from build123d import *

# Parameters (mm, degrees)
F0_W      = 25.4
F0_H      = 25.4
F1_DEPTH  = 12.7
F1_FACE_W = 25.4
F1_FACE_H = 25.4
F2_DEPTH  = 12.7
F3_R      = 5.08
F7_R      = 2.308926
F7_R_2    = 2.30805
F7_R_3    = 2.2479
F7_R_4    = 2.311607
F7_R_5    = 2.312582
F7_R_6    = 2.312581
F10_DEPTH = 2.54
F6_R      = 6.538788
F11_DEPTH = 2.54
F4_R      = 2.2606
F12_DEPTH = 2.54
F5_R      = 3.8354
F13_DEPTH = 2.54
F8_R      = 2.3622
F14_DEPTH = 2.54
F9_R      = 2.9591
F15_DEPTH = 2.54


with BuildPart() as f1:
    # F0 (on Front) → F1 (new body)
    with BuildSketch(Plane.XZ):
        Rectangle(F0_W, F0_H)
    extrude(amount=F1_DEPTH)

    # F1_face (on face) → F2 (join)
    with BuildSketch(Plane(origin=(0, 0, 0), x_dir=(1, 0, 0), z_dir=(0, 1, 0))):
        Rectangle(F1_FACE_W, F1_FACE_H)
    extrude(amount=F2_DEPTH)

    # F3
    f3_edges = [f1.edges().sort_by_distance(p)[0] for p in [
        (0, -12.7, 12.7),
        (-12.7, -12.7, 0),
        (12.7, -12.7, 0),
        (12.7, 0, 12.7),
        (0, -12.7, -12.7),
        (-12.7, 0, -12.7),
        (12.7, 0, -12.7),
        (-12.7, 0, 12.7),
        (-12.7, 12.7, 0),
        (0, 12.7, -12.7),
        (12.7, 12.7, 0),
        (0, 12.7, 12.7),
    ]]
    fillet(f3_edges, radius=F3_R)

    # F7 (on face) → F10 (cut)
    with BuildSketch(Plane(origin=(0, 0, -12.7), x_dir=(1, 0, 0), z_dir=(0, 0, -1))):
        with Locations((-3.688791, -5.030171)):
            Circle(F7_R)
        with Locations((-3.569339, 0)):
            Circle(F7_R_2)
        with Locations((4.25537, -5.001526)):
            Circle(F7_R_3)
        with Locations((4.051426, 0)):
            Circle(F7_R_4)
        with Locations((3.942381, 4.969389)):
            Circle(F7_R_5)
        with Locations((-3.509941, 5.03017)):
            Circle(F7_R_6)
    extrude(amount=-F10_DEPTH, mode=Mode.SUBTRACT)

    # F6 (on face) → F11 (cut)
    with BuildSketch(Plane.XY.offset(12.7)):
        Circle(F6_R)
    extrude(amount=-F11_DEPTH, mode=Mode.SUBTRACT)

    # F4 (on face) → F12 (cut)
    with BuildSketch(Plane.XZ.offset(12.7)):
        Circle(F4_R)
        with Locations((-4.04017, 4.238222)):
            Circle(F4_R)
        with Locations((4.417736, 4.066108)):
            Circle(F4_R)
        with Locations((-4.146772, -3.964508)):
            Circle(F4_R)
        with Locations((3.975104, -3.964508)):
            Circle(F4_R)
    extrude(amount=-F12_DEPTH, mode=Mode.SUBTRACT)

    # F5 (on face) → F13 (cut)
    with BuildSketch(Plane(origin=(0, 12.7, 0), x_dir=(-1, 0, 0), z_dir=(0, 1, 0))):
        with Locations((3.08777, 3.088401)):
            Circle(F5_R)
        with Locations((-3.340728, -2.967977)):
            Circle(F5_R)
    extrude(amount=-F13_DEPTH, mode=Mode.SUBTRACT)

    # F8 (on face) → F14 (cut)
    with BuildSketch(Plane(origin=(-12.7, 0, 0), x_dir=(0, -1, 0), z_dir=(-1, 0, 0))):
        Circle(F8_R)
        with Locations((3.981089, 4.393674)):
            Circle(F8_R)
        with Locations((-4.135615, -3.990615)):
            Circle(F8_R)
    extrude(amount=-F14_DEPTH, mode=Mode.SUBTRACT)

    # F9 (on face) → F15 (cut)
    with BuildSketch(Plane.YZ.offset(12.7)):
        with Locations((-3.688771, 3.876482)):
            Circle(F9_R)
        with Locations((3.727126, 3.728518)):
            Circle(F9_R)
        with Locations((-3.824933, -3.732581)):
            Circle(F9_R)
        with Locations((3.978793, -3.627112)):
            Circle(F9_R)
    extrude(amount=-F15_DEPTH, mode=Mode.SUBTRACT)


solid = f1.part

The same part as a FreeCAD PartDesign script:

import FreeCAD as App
import Part
import Sketcher
Q = App.Units.Quantity

doc = App.newDocument("Part")
body = doc.addObject("PartDesign::Body", "Body")

sketch1 = body.newObject("Sketcher::SketchObject", "Sketch")
sketch1.AttachmentSupport = (doc.getObject("XZ_Plane"), [""])
sketch1.MapMode = "FlatFace"
sketch1.addGeometry(Part.LineSegment(App.Vector(-13, 13, 0), App.Vector(-13, -13, 0)), False)
sketch1.addGeometry(Part.LineSegment(App.Vector(-13, -13, 0), App.Vector(13, -13, 0)), False)
sketch1.addGeometry(Part.LineSegment(App.Vector(13, -13, 0), App.Vector(13, 13, 0)), False)
sketch1.addGeometry(Part.LineSegment(App.Vector(13, 13, 0), App.Vector(-13, 13, 0)), False)
sketch1.addConstraint(Sketcher.Constraint("Coincident", 0, 2, 1, 1))
sketch1.addConstraint(Sketcher.Constraint("Coincident", 1, 2, 2, 1))
sketch1.addConstraint(Sketcher.Constraint("Coincident", 2, 2, 3, 1))
sketch1.addConstraint(Sketcher.Constraint("Coincident", 3, 2, 0, 1))
sketch1.addConstraint(Sketcher.Constraint("Vertical", 0))
sketch1.addConstraint(Sketcher.Constraint("Horizontal", 1))
sketch1.addConstraint(Sketcher.Constraint("Vertical", 2))
sketch1.addConstraint(Sketcher.Constraint("Horizontal", 3))
sketch1.addConstraint(Sketcher.Constraint("Symmetric", 0, 2, 2, 2, -1, 1))
sketch1.addConstraint(Sketcher.Constraint("Equal", 3, 0))
sketch1.addConstraint(Sketcher.Constraint("DistanceX", 1, 1, 1, 2, Q("1 in")))
pad1 = body.newObject("PartDesign::Pad", "Pad")
pad1.Profile = sketch1
pad1.Length = Q("0.5 in")

sketch2 = body.newObject("Sketcher::SketchObject", "Sketch001")
sketch2.AttachmentSupport = (doc.getObject("XZ_Plane"), [""])
sketch2.MapMode = "FlatFace"
sketch2.addGeometry(Part.LineSegment(App.Vector(-13, -13, 0), App.Vector(-13, 13, 0)), False)
sketch2.addGeometry(Part.LineSegment(App.Vector(-13, 13, 0), App.Vector(13, 13, 0)), False)
sketch2.addGeometry(Part.LineSegment(App.Vector(13, 13, 0), App.Vector(13, -13, 0)), False)
sketch2.addGeometry(Part.LineSegment(App.Vector(13, -13, 0), App.Vector(-13, -13, 0)), False)
sketch2.addConstraint(Sketcher.Constraint("Coincident", 0, 2, 1, 1))
sketch2.addConstraint(Sketcher.Constraint("Coincident", 1, 2, 2, 1))
sketch2.addConstraint(Sketcher.Constraint("Coincident", 2, 2, 3, 1))
sketch2.addConstraint(Sketcher.Constraint("Coincident", 3, 2, 0, 1))
sketch2.addConstraint(Sketcher.Constraint("Vertical", 0))
sketch2.addConstraint(Sketcher.Constraint("Horizontal", 1))
sketch2.addConstraint(Sketcher.Constraint("Vertical", 2))
sketch2.addConstraint(Sketcher.Constraint("Horizontal", 3))
sketch2.addConstraint(Sketcher.Constraint("Symmetric", 0, 2, 2, 2, -1, 1))
sketch2.addConstraint(Sketcher.Constraint("Equal", 3, 0))
sketch2.addConstraint(Sketcher.Constraint("DistanceX", 1, 1, 1, 2, Q("1 in")))
pad2 = body.newObject("PartDesign::Pad", "Pad001")
pad2.Profile = sketch2
pad2.Length = Q("0.5 in")
pad2.Reversed = True
doc.recompute()

fillet = body.newObject("PartDesign::Fillet", "Fillet")
fillet.Base = (pad2, ["Edge1"])
fillet.UseAllEdges = True
fillet.Radius = Q("0.2 in")

sketch3 = body.newObject("Sketcher::SketchObject", "Sketch002")
sketch3.AttachmentSupport = (doc.getObject("XY_Plane"), [""])
sketch3.MapMode = "FlatFace"
sketch3.AttachmentOffset = App.Placement(App.Vector(0, 0, -0.5 * 25.4), App.Rotation())
sketch3.addGeometry(Part.Circle(App.Vector(-3.7, 5, 0), App.Vector(0, 0, 1), 2.3), False)
sketch3.addGeometry(Part.Circle(App.Vector(-3.6, 0, 0), App.Vector(0, 0, 1), 2.3), False)
sketch3.addGeometry(Part.Circle(App.Vector(4.3, 5, 0), App.Vector(0, 0, 1), 2.2), False)
sketch3.addGeometry(Part.Circle(App.Vector(4.1, 0, 0), App.Vector(0, 0, 1), 2.3), False)
sketch3.addGeometry(Part.Circle(App.Vector(3.9, -5, 0), App.Vector(0, 0, 1), 2.3), False)
sketch3.addGeometry(Part.Circle(App.Vector(-3.5, -5, 0), App.Vector(0, 0, 1), 2.3), False)
sketch3.addConstraint(Sketcher.Constraint("Equal", 4, 5))
sketch3.addConstraint(Sketcher.Constraint("PointOnObject", 1, 3, -1))
sketch3.addConstraint(Sketcher.Constraint("PointOnObject", 3, 3, -1))
sketch3.addConstraint(Sketcher.Constraint("Diameter", 2, Q("0.177 in")))
sketch3.addConstraint(Sketcher.Constraint("Diameter", 1, Q("4.6161 mm")))
sketch3.addConstraint(Sketcher.Constraint("Diameter", 0, Q("4.617852 mm")))
sketch3.addConstraint(Sketcher.Constraint("Diameter", 3, Q("4.623214 mm")))
sketch3.addConstraint(Sketcher.Constraint("Diameter", 4, Q("4.625164 mm")))
sketch3.addConstraint(Sketcher.Constraint("DistanceX", 0, 3, -1, 1, Q("3.688791 mm")))
sketch3.addConstraint(Sketcher.Constraint("DistanceY", -1, 1, 0, 3, Q("5.030171 mm")))
sketch3.addConstraint(Sketcher.Constraint("DistanceX", 1, 3, -1, 1, Q("3.569339 mm")))
sketch3.addConstraint(Sketcher.Constraint("DistanceX", -1, 1, 2, 3, Q("4.25537 mm")))
sketch3.addConstraint(Sketcher.Constraint("DistanceX", -1, 1, 4, 3, Q("3.942381 mm")))
sketch3.addConstraint(Sketcher.Constraint("DistanceY", 4, 3, -1, 1, Q("4.969389 mm")))
sketch3.addConstraint(Sketcher.Constraint("DistanceX", 5, 3, -1, 1, Q("3.509941 mm")))
sketch3.addConstraint(Sketcher.Constraint("DistanceY", 5, 3, -1, 1, Q("5.03017 mm")))
sketch3.addConstraint(Sketcher.Constraint("DistanceY", -1, 1, 2, 3, Q("5.001526 mm")))
sketch3.addConstraint(Sketcher.Constraint("DistanceX", -1, 1, 3, 3, Q("4.051426 mm")))
pocket1 = body.newObject("PartDesign::Pocket", "Pocket")
pocket1.Profile = sketch3
pocket1.Length = Q("0.1 in")
pocket1.Reversed = True

sketch4 = body.newObject("Sketcher::SketchObject", "Sketch003")
sketch4.AttachmentSupport = (doc.getObject("XY_Plane"), [""])
sketch4.MapMode = "FlatFace"
sketch4.AttachmentOffset = App.Placement(App.Vector(0, 0, 0.5 * 25.4), App.Rotation())
sketch4.addGeometry(Part.Circle(App.Vector(0, 0, 0), App.Vector(0, 0, 1), 7), False)
sketch4.addConstraint(Sketcher.Constraint("Coincident", 0, 3, -1, 1))
sketch4.addConstraint(Sketcher.Constraint("Diameter", 0, Q("13.077576 mm")))
pocket2 = body.newObject("PartDesign::Pocket", "Pocket001")
pocket2.Profile = sketch4
pocket2.Length = Q("0.1 in")

sketch5 = body.newObject("Sketcher::SketchObject", "Sketch004")
sketch5.AttachmentSupport = (doc.getObject("XZ_Plane"), [""])
sketch5.MapMode = "FlatFace"
sketch5.AttachmentOffset = App.Placement(App.Vector(0, 0, 0.5 * 25.4), App.Rotation())
sketch5.addGeometry(Part.Circle(App.Vector(0, 0, 0), App.Vector(0, 0, 1), 2.3), False)
sketch5.addGeometry(Part.Circle(App.Vector(-4, 4.2, 0), App.Vector(0, 0, 1), 2.3), False)
sketch5.addGeometry(Part.Circle(App.Vector(4.4, 4.1, 0), App.Vector(0, 0, 1), 2.3), False)
sketch5.addGeometry(Part.Circle(App.Vector(-4.1, -4, 0), App.Vector(0, 0, 1), 2.3), False)
sketch5.addGeometry(Part.Circle(App.Vector(4, -4, 0), App.Vector(0, 0, 1), 2.3), False)
sketch5.addConstraint(Sketcher.Constraint("Coincident", 0, 3, -1, 1))
sketch5.addConstraint(Sketcher.Constraint("Equal", 0, 1))
sketch5.addConstraint(Sketcher.Constraint("Equal", 1, 2))
sketch5.addConstraint(Sketcher.Constraint("Equal", 2, 3))
sketch5.addConstraint(Sketcher.Constraint("Equal", 3, 4))
sketch5.addConstraint(Sketcher.Constraint("Horizontal", 3, 3, 4, 3))
sketch5.addConstraint(Sketcher.Constraint("Diameter", 0, Q("0.178 in")))
sketch5.addConstraint(Sketcher.Constraint("DistanceX", -1, 1, 4, 3, Q("0.1565002 in")))
sketch5.addConstraint(Sketcher.Constraint("DistanceX", 1, 3, -1, 1, Q("4.04017 mm")))
sketch5.addConstraint(Sketcher.Constraint("DistanceY", 3, 3, 1, 3, Q("8.20273 mm")))
sketch5.addConstraint(Sketcher.Constraint("DistanceX", 4, 3, 2, 3, Q("0.442632 mm")))
sketch5.addConstraint(Sketcher.Constraint("DistanceY", -1, 1, 1, 3, Q("4.238222 mm")))
sketch5.addConstraint(Sketcher.Constraint("DistanceY", -1, 1, 2, 3, Q("4.066108 mm")))
sketch5.addConstraint(Sketcher.Constraint("DistanceX", 3, 3, -1, 1, Q("4.146772 mm")))
pocket3 = body.newObject("PartDesign::Pocket", "Pocket002")
pocket3.Profile = sketch5
pocket3.Length = Q("0.1 in")

sketch6 = body.newObject("Sketcher::SketchObject", "Sketch005")
sketch6.AttachmentSupport = (doc.getObject("XZ_Plane"), [""])
sketch6.MapMode = "FlatFace"
sketch6.AttachmentOffset = App.Placement(App.Vector(0, 0, -0.5 * 25.4), App.Rotation())
sketch6.addGeometry(Part.Circle(App.Vector(-3.1, 3.1, 0), App.Vector(0, 0, 1), 3.8), False)
sketch6.addGeometry(Part.Circle(App.Vector(3.3, -3, 0), App.Vector(0, 0, 1), 3.8), False)
sketch6.addConstraint(Sketcher.Constraint("Equal", 0, 1))
sketch6.addConstraint(Sketcher.Constraint("Diameter", 0, Q("0.302 in")))
sketch6.addConstraint(Sketcher.Constraint("DistanceY", -1, 1, 0, 3, Q("3.088401 mm")))
sketch6.addConstraint(Sketcher.Constraint("DistanceX", 0, 3, -1, 1, Q("3.08777 mm")))
sketch6.addConstraint(Sketcher.Constraint("DistanceY", 1, 3, 0, 3, Q("6.056378 mm")))
sketch6.addConstraint(Sketcher.Constraint("DistanceX", -1, 1, 1, 3, Q("3.340728 mm")))
pocket4 = body.newObject("PartDesign::Pocket", "Pocket003")
pocket4.Profile = sketch6
pocket4.Length = Q("0.1 in")
pocket4.Reversed = True

sketch7 = body.newObject("Sketcher::SketchObject", "Sketch006")
sketch7.AttachmentSupport = (doc.getObject("YZ_Plane"), [""])
sketch7.MapMode = "FlatFace"
sketch7.AttachmentOffset = App.Placement(App.Vector(0, 0, -0.5 * 25.4), App.Rotation())
sketch7.addGeometry(Part.Circle(App.Vector(0, 0, 0), App.Vector(0, 0, 1), 2.4), False)
sketch7.addGeometry(Part.Circle(App.Vector(-4, 4.4, 0), App.Vector(0, 0, 1), 2.4), False)
sketch7.addGeometry(Part.Circle(App.Vector(4.1, -4, 0), App.Vector(0, 0, 1), 2.4), False)
sketch7.addConstraint(Sketcher.Constraint("Coincident", 0, 3, -1, 1))
sketch7.addConstraint(Sketcher.Constraint("Equal", 0, 1))
sketch7.addConstraint(Sketcher.Constraint("Equal", 1, 2))
sketch7.addConstraint(Sketcher.Constraint("Diameter", 0, Q("0.186 in")))
sketch7.addConstraint(Sketcher.Constraint("DistanceX", 1, 3, -1, 1, Q("3.981089 mm")))
sketch7.addConstraint(Sketcher.Constraint("DistanceY", 2, 3, 1, 3, Q("8.384289 mm")))
sketch7.addConstraint(Sketcher.Constraint("DistanceY", -1, 1, 1, 3, Q("4.393674 mm")))
sketch7.addConstraint(Sketcher.Constraint("DistanceX", -1, 1, 2, 3, Q("4.135615 mm")))
pocket5 = body.newObject("PartDesign::Pocket", "Pocket004")
pocket5.Profile = sketch7
pocket5.Length = Q("0.1 in")
pocket5.Reversed = True

sketch8 = body.newObject("Sketcher::SketchObject", "Sketch007")
sketch8.AttachmentSupport = (doc.getObject("YZ_Plane"), [""])
sketch8.MapMode = "FlatFace"
sketch8.AttachmentOffset = App.Placement(App.Vector(0, 0, 0.5 * 25.4), App.Rotation())
sketch8.addGeometry(Part.Circle(App.Vector(-3.7, 3.9, 0), App.Vector(0, 0, 1), 3), False)
sketch8.addGeometry(Part.Circle(App.Vector(3.7, 3.7, 0), App.Vector(0, 0, 1), 3), False)
sketch8.addGeometry(Part.Circle(App.Vector(-3.8, -3.7, 0), App.Vector(0, 0, 1), 3), False)
sketch8.addGeometry(Part.Circle(App.Vector(4, -3.6, 0), App.Vector(0, 0, 1), 3), False)
sketch8.addConstraint(Sketcher.Constraint("Equal", 0, 1))
sketch8.addConstraint(Sketcher.Constraint("Equal", 1, 2))
sketch8.addConstraint(Sketcher.Constraint("Equal", 2, 3))
sketch8.addConstraint(Sketcher.Constraint("Diameter", 0, Q("0.233 in")))
sketch8.addConstraint(Sketcher.Constraint("DistanceY", 2, 3, 1, 3, Q("7.461099 mm")))
sketch8.addConstraint(Sketcher.Constraint("DistanceX", 0, 3, -1, 1, Q("3.688771 mm")))
sketch8.addConstraint(Sketcher.Constraint("DistanceY", -1, 1, 1, 3, Q("3.728518 mm")))
sketch8.addConstraint(Sketcher.Constraint("DistanceY", 3, 3, -1, 1, Q("3.627112 mm")))
sketch8.addConstraint(Sketcher.Constraint("DistanceX", 2, 3, 1, 3, Q("7.552059 mm")))
sketch8.addConstraint(Sketcher.Constraint("DistanceY", -1, 1, 0, 3, Q("3.876482 mm")))
sketch8.addConstraint(Sketcher.Constraint("DistanceX", -1, 1, 1, 3, Q("3.727126 mm")))
sketch8.addConstraint(Sketcher.Constraint("DistanceX", -1, 1, 3, 3, Q("3.978793 mm")))
pocket6 = body.newObject("PartDesign::Pocket", "Pocket005")
pocket6.Profile = sketch8
pocket6.Length = Q("0.1 in")

doc.recompute()
